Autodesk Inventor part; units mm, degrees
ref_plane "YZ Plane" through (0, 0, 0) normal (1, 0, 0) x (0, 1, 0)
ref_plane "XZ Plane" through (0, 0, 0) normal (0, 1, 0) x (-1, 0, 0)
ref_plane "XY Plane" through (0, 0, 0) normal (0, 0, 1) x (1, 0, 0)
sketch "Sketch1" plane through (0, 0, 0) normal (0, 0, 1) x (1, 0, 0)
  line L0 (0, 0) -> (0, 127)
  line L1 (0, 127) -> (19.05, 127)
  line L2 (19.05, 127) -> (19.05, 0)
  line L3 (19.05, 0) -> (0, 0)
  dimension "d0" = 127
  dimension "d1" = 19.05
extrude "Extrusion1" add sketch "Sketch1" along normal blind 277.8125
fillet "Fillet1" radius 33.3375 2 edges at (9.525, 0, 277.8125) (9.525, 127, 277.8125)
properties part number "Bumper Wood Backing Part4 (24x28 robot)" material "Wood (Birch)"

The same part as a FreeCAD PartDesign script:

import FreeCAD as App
import Part
import Sketcher

V = App.Vector
Q = App.Units.Quantity


def edges_at(feature, points):
    """Names of the edges that pass closest to the given points."""
    edges = feature.Shape.Edges
    near = lambda p: min(range(len(edges)), key=lambda i: edges[i].distToShape(Part.Vertex(*p))[0])
    return sorted({f"Edge{near(p) + 1}" for p in points})

doc = App.newDocument("Part")
body = doc.addObject("PartDesign::Body", "Body")

# Sketch on XY plane
sketch1 = body.newObject("Sketcher::SketchObject", "Sketch")
sketch1.AttachmentSupport = (doc.getObject("XY_Plane"), [""])
sketch1.MapMode = "FlatFace"
sketch1.addGeometry([
    Part.LineSegment(V(0, 127, 0), V(0, 0, 0)),
    Part.LineSegment(V(0, 0, 0), V(19.05, 0, 0)),
    Part.LineSegment(V(19.05, 0, 0), V(19.05, 127, 0)),
    Part.LineSegment(V(19.05, 127, 0), V(0, 127, 0)),
], False)
sketch1.addConstraint([
    Sketcher.Constraint("Coincident", 0, 2, 1, 1),
    Sketcher.Constraint("Coincident", 1, 2, 2, 1),
    Sketcher.Constraint("Coincident", 2, 2, 3, 1),
    Sketcher.Constraint("Coincident", 3, 2, 0, 1),
    Sketcher.Constraint("Vertical", 0),
    Sketcher.Constraint("Horizontal", 1),
    Sketcher.Constraint("Vertical", 2),
    Sketcher.Constraint("Horizontal", 3),
    Sketcher.Constraint("Coincident", 0, 2, -1, 1),
    Sketcher.Constraint("DistanceY", 0, 2, 0, 1, Q("5 in")),
    Sketcher.Constraint("DistanceX", 1, 1, 1, 2, Q("0.75 in")),
])
pad1 = body.newObject("PartDesign::Pad", "Pad")
pad1.Profile = sketch1
pad1.Length = Q("10.9375 in")
doc.recompute()

fillet = body.newObject("PartDesign::Fillet", "Fillet")
fillet.Base = (pad1, edges_at(pad1, [(9.525, 0, 277.812), (9.525, 127, 277.812)]))
fillet.Radius = Q("1.3125 in")

doc.recompute()
